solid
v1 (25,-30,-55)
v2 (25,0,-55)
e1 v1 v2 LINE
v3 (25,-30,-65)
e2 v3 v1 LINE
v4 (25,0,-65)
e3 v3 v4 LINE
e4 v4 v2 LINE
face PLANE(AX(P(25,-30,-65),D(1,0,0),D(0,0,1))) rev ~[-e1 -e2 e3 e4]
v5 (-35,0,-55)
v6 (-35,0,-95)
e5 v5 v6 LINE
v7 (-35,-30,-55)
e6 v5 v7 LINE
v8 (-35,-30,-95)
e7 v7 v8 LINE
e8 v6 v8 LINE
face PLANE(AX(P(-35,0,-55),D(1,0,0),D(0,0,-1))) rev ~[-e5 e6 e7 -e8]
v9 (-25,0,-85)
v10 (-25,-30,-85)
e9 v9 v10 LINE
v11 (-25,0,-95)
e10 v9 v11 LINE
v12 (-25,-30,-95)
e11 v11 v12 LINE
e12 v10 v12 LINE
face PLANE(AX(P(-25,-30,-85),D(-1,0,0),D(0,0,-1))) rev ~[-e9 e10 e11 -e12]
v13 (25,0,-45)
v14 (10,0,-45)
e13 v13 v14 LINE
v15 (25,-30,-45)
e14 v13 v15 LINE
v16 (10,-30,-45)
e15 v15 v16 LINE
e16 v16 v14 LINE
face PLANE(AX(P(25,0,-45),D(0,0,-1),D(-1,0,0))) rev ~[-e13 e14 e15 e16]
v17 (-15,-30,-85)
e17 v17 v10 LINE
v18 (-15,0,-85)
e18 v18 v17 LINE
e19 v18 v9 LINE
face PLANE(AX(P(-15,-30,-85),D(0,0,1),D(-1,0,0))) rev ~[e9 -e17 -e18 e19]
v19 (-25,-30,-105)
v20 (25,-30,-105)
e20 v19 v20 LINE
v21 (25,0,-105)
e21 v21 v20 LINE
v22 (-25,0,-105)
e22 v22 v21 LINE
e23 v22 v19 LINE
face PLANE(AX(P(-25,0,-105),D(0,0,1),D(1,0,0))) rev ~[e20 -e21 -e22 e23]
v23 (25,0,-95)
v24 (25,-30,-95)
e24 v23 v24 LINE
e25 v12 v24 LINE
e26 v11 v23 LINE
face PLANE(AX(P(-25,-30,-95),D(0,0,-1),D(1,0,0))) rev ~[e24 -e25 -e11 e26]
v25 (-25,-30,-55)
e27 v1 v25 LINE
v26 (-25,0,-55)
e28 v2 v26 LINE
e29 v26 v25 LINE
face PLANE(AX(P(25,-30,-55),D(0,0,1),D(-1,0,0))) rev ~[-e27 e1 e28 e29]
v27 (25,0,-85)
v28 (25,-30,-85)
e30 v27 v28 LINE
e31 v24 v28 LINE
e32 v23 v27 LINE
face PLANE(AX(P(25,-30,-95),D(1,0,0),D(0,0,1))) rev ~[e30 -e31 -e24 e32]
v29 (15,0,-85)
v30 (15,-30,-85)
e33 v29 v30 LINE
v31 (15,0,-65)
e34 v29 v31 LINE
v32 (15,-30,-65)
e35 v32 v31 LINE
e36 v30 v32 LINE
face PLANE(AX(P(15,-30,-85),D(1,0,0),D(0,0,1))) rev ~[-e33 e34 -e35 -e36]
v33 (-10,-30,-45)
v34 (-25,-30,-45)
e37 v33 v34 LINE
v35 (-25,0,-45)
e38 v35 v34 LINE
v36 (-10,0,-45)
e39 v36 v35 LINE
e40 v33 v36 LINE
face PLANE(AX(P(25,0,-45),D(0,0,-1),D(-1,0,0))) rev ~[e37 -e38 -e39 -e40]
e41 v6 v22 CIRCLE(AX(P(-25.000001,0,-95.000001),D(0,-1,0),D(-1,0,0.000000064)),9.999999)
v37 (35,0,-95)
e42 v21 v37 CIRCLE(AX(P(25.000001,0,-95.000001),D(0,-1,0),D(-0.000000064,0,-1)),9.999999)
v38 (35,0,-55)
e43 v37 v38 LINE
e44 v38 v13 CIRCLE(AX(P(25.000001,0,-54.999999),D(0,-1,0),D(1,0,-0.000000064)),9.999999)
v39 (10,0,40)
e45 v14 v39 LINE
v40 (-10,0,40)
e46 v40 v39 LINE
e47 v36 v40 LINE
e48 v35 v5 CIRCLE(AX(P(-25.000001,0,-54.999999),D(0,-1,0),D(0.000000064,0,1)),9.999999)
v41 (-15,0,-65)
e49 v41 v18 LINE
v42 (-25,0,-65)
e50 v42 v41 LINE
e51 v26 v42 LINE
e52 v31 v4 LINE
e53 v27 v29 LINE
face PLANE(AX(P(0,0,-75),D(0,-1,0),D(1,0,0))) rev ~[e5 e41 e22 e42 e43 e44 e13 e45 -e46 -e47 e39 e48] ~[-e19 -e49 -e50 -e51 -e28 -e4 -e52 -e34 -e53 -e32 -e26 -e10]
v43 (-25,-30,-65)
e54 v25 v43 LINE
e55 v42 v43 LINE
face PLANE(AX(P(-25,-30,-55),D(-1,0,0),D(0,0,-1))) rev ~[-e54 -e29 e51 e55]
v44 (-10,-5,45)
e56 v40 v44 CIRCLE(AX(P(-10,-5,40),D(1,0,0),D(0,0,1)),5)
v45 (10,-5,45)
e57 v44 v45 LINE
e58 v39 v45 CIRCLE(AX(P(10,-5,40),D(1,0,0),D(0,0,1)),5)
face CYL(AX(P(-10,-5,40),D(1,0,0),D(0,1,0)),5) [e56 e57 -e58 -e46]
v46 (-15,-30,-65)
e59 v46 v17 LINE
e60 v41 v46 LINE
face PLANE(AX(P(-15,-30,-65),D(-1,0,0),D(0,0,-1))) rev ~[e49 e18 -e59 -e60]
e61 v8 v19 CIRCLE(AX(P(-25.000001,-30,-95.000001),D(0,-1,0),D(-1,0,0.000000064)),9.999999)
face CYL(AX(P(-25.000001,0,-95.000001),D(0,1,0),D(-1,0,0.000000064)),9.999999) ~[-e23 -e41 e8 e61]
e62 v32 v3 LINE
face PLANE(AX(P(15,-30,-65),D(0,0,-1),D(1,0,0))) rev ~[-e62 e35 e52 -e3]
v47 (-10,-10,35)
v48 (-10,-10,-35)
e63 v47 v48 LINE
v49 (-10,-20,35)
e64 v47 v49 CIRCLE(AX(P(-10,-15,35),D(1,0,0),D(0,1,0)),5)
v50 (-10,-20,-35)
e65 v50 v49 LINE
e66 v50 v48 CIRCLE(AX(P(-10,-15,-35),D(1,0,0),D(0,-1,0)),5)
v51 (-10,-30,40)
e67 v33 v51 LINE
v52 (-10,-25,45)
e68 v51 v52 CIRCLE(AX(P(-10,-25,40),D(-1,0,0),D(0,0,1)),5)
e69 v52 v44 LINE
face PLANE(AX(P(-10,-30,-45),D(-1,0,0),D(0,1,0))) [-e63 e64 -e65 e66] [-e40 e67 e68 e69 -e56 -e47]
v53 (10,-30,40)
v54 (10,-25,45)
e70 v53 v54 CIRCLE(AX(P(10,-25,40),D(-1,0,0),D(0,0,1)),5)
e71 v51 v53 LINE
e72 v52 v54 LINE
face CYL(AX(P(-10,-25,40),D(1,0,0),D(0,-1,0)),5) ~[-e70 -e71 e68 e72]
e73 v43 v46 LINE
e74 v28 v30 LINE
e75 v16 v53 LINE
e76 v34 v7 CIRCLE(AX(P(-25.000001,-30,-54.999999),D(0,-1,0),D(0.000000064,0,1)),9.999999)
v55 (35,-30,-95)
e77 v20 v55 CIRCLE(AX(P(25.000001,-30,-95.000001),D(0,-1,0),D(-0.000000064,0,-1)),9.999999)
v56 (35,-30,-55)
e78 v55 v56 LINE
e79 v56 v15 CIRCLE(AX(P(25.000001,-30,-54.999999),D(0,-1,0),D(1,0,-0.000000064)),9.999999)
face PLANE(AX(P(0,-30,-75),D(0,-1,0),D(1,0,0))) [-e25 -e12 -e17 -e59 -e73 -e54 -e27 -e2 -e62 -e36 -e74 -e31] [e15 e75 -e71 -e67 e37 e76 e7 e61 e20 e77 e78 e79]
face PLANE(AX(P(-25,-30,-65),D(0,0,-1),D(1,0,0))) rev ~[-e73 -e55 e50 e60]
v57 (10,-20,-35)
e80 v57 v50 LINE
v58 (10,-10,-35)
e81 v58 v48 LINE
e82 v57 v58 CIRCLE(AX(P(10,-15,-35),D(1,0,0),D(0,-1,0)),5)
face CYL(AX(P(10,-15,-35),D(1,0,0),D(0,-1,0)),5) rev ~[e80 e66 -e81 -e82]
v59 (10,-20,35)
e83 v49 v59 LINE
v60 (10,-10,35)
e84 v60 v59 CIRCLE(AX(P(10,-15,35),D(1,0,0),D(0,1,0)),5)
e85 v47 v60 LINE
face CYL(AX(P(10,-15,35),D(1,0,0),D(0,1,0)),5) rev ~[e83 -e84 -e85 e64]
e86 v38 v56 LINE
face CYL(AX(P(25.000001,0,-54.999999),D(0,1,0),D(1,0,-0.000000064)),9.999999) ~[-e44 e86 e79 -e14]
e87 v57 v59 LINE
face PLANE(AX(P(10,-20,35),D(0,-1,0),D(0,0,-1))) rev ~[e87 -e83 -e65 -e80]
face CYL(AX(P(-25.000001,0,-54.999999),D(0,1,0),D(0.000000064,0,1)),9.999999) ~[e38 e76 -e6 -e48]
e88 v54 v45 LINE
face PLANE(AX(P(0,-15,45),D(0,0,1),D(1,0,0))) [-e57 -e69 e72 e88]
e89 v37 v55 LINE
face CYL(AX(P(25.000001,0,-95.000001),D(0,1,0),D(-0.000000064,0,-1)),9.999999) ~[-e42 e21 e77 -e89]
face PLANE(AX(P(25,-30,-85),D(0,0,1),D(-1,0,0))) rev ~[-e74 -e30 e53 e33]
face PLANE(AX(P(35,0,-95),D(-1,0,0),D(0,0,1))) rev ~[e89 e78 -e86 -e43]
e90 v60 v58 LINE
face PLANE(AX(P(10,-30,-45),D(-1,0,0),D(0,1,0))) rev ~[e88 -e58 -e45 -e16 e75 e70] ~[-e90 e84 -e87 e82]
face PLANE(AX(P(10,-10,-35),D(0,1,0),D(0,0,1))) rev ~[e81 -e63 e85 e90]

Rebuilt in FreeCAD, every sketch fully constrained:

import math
import FreeCAD as App
import Part
import Sketcher


def edges_at(feature, points):
    """Names of the edges that pass closest to the given points."""
    edges = feature.Shape.Edges
    near = lambda p: min(range(len(edges)), key=lambda i: edges[i].distToShape(Part.Vertex(*p))[0])
    return sorted({f"Edge{near(p) + 1}" for p in points})


def add_polygon(sketch, points):
    """Adds a closed chain of lines whose ends are joined by coincident constraints."""
    first, n = sketch.GeometryCount, len(points)
    for a, b in zip(points, points[1:] + points[:1]):
        sketch.addGeometry(Part.LineSegment(App.Vector(*a, 0), App.Vector(*b, 0)), False)
    for i in range(n):
        sketch.addConstraint(Sketcher.Constraint("Coincident", first + i, 2, first + (i + 1) % n, 1))

doc = App.newDocument("Part")
body = doc.addObject("PartDesign::Body", "Body")

# Sketch on XZ plane
sketch1 = body.newObject("Sketcher::SketchObject", "Sketch")
sketch1.AttachmentSupport = (doc.getObject("XZ_Plane"), [""])
sketch1.MapMode = "FlatFace"
sketch1.addGeometry([
    Part.ArcOfCircle(Part.Circle(App.Vector(-25, -55, 0), App.Vector(0, 0, 1), 10), math.radians(90), math.radians(180)),  # 0
    Part.LineSegment(App.Vector(-35, -55, 0), App.Vector(-35, -95, 0)),  # 1
    Part.ArcOfCircle(Part.Circle(App.Vector(-25, -95, 0), App.Vector(0, 0, 1), 10), math.radians(180), math.radians(270)),  # 2
    Part.LineSegment(App.Vector(-25, -105, 0), App.Vector(25, -105, 0)),  # 3
    Part.ArcOfCircle(Part.Circle(App.Vector(25, -95, 0), App.Vector(0, 0, 1), 10), math.radians(-90), math.radians(0)),  # 4
    Part.LineSegment(App.Vector(35, -95, 0), App.Vector(35, -55, 0)),  # 5
    Part.ArcOfCircle(Part.Circle(App.Vector(25, -55, 0), App.Vector(0, 0, 1), 10), math.radians(0), math.radians(90)),  # 6
    Part.LineSegment(App.Vector(25, -45, 0), App.Vector(-25, -45, 0)),  # 7
], False)
sketch1.addConstraint([
    Sketcher.Constraint("Tangent", 0, 2, 1, 1),
    Sketcher.Constraint("Tangent", 1, 2, 2, 1),
    Sketcher.Constraint("Tangent", 2, 2, 3, 1),
    Sketcher.Constraint("Tangent", 3, 2, 4, 1),
    Sketcher.Constraint("Tangent", 4, 2, 5, 1),
    Sketcher.Constraint("Tangent", 5, 2, 6, 1),
    Sketcher.Constraint("Tangent", 6, 2, 7, 1),
    Sketcher.Constraint("Tangent", 7, 2, 0, 1),
    Sketcher.Constraint("Vertical", 1),
    Sketcher.Constraint("Horizontal", 3),
    Sketcher.Constraint("Vertical", 5),
    Sketcher.Constraint("Horizontal", 7),
    Sketcher.Constraint("Equal", 0, 2),
    Sketcher.Constraint("Equal", 2, 4),
    Sketcher.Constraint("Equal", 4, 6),
    Sketcher.Constraint("Radius", 0, 9.999999),
    Sketcher.Constraint("DistanceX", 3, 1, 3, 2, 50.0),
    Sketcher.Constraint("DistanceY", 1, 2, 1, 1, 40.0),
    Sketcher.Constraint("DistanceX", 0, 3, -1, 1, 25.000001),
    Sketcher.Constraint("DistanceY", 0, 3, -1, 1, 54.999999),
])
pad1 = body.newObject("PartDesign::Pad", "Pad")
pad1.Profile = sketch1
pad1.Length = 30
body2 = doc.addObject("PartDesign::Body", "Body001")

# Sketch on XZ plane
sketch2 = body2.newObject("Sketcher::SketchObject", "Sketch001")
sketch2.AttachmentSupport = (doc.getObject("XZ_Plane001"), [""])
sketch2.MapMode = "FlatFace"
sketch2.AttachmentOffset = App.Placement(App.Vector(0, 0, 30), App.Rotation())
add_polygon(sketch2, [(25, -55), (-25, -55), (-25, -65), (-15, -65), (-15, -85), (-25, -85), (-25, -95), (25, -95), (25, -85), (15, -85), (15, -65), (25, -65)])  # lines 0-11
sketch2.addConstraint([
    Sketcher.Constraint("Horizontal", 0),
    Sketcher.Constraint("Vertical", 1),
    Sketcher.Constraint("Horizontal", 2),
    Sketcher.Constraint("Vertical", 3),
    Sketcher.Constraint("Horizontal", 4),
    Sketcher.Constraint("Vertical", 5),
    Sketcher.Constraint("Horizontal", 6),
    Sketcher.Constraint("Vertical", 7),
    Sketcher.Constraint("Horizontal", 8),
    Sketcher.Constraint("Vertical", 9),
    Sketcher.Constraint("Horizontal", 10),
    Sketcher.Constraint("Vertical", 11),
    Sketcher.Constraint("Symmetric", 4, 2, 7, 2, -2),
    Sketcher.Constraint("Symmetric", 2, 2, 9, 2, -2),
    Sketcher.Constraint("Vertical", 1, 2, 4, 2),
    Sketcher.Constraint("Vertical", 7, 2, 10, 2),
    Sketcher.Constraint("Equal", 10, 1),
    Sketcher.Constraint("Equal", 1, 5),
    Sketcher.Constraint("DistanceX", 0, 2, 0, 1, 50.0),
    Sketcher.Constraint("DistanceX", 2, 1, 2, 2, 10.0),
    Sketcher.Constraint("DistanceY", 3, 2, 3, 1, 20.0),
    Sketcher.Constraint("DistanceY", 0, 2, -1, 1, 55.0),
])
pad2 = body2.newObject("PartDesign::Pad", "Pad001")
pad2.Profile = sketch2
pad2.Type = "TwoLengths"
pad2.Length = 25
pad2.Length2 = 40
doc.recompute()

boolean = body.newObject("PartDesign::Boolean", "Boolean")
boolean.Type = "Cut"
boolean.addObjects([body2])

# Sketch on XY plane
sketch3 = body.newObject("Sketcher::SketchObject", "Sketch002")
sketch3.AttachmentSupport = (doc.getObject("XY_Plane"), [""])
sketch3.MapMode = "FlatFace"
sketch3.AttachmentOffset = App.Placement(App.Vector(0, 0, -45), App.Rotation())
add_polygon(sketch3, [(-10, 0), (-10, -30), (10, -30), (10, 0)])  # lines 0-3
sketch3.addConstraint([
    Sketcher.Constraint("Vertical", 0),
    Sketcher.Constraint("Horizontal", 1),
    Sketcher.Constraint("Vertical", 2),
    Sketcher.Constraint("Horizontal", 3),
    Sketcher.Constraint("Symmetric", 2, 2, 3, 2, -1, 1),
    Sketcher.Constraint("DistanceX", 1, 1, 1, 2, 20.0),
    Sketcher.Constraint("DistanceY", 0, 2, 0, 1, 30.0),
])
pad3 = body.newObject("PartDesign::Pad", "Pad002")
pad3.Profile = sketch3
pad3.Length = 90
doc.recompute()

fillet = body.newObject("PartDesign::Fillet", "Fillet")
fillet.Base = (pad3, edges_at(pad3, [(0, -30, 45), (0, 0, 45)]))
fillet.Radius = 5
body3 = doc.addObject("PartDesign::Body", "Body002")

# Sketch on YZ plane
sketch4 = body3.newObject("Sketcher::SketchObject", "Sketch003")
sketch4.AttachmentSupport = (doc.getObject("YZ_Plane002"), [""])
sketch4.MapMode = "FlatFace"
sketch4.AttachmentOffset = App.Placement(App.Vector(0, 0, 10), App.Rotation())
sketch4.addGeometry([
    Part.LineSegment(App.Vector(-10, -35, 0), App.Vector(-10, 35, 0)),
    Part.ArcOfCircle(Part.Circle(App.Vector(-15, 35, 0), App.Vector(0, 0, 1), 5), math.radians(0), math.radians(180)),
    Part.LineSegment(App.Vector(-20, 35, 0), App.Vector(-20, -35, 0)),
    Part.ArcOfCircle(Part.Circle(App.Vector(-15, -35, 0), App.Vector(0, 0, 1), 5), math.radians(180), math.radians(360)),
], False)
sketch4.addConstraint([
    Sketcher.Constraint("Tangent", 0, 2, 1, 1),
    Sketcher.Constraint("Tangent", 1, 2, 2, 1),
    Sketcher.Constraint("Tangent", 2, 2, 3, 1),
    Sketcher.Constraint("Tangent", 3, 2, 0, 1),
    Sketcher.Constraint("Vertical", 0),
    Sketcher.Constraint("Vertical", 2),
    Sketcher.Constraint("Radius", 1, 5.0),
    Sketcher.Constraint("DistanceY", 0, 1, 0, 2, 70.0),
    Sketcher.Constraint("DistanceX", 1, 3, -1, 1, 15.0),
    Sketcher.Constraint("DistanceY", -1, 1, 1, 3, 35.0),
])
pad4 = body3.newObject("PartDesign::Pad", "Pad003")
pad4.Profile = sketch4
pad4.Type = "TwoLengths"
pad4.Length = 25
pad4.Length2 = 40
doc.recompute()

boolean2 = body.newObject("PartDesign::Boolean", "Boolean001")
boolean2.Type = "Cut"
boolean2.addObjects([body3])

doc.recompute()
